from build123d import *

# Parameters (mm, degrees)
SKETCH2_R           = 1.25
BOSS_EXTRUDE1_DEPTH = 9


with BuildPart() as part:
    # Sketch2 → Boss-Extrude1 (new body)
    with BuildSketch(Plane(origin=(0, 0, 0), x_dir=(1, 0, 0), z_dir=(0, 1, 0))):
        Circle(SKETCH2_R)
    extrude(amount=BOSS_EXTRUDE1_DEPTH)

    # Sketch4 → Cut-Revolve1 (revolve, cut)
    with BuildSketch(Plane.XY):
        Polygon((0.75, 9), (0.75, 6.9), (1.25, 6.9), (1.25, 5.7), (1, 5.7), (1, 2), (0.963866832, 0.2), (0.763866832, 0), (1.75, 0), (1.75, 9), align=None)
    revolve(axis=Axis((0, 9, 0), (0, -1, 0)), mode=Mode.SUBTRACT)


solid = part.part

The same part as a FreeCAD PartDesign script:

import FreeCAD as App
import Part
import Sketcher
from FreeCAD import Vector
Q = App.Units.Quantity


def add_polygon(sketch, points):
    """Adds a closed chain of lines whose ends are joined by coincident constraints."""
    first, n = sketch.GeometryCount, len(points)
    for a, b in zip(points, points[1:] + points[:1]):
        sketch.addGeometry(Part.LineSegment(App.Vector(*a, 0), App.Vector(*b, 0)), False)
    for i in range(n):
        sketch.addConstraint(Sketcher.Constraint("Coincident", first + i, 2, first + (i + 1) % n, 1))

doc = App.newDocument("Part")
body = doc.addObject("PartDesign::Body", "Body")

sketch1 = doc.addObject("Sketcher::SketchObject", "Sketch")
body.addObject(sketch1)
sketch1.AttachmentSupport = (doc.XZ_Plane, [""])
sketch1.MapMode = "FlatFace"
sketch1.addGeometry(Part.Circle(Vector(0, 0, 0), Vector(0, 0, 1), 1.25), False)
sketch1.addConstraint(Sketcher.Constraint("Coincident", 0, 3, -1, 1))
sketch1.addConstraint(Sketcher.Constraint("Diameter", 0, 2.5))
pad1 = doc.addObject("PartDesign::Pad", "Pad")
body.addObject(pad1)
pad1.Profile = sketch1
pad1.Length = 9
pad1.Reversed = True

sketch2 = doc.addObject("Sketcher::SketchObject", "Sketch001")
body.addObject(sketch2)
sketch2.AttachmentSupport = (doc.XY_Plane, [""])
sketch2.MapMode = "FlatFace"
add_polygon(sketch2, [(0.75, 9), (0.75, 6.9), (1.25, 6.9), (1.25, 5.7), (1, 5.7), (1, 2), (0.963867, 0.2), (0.763867, 0), (1.75, 0), (1.75, 9)])
sketch2.addConstraint(Sketcher.Constraint("Vertical", 0))
sketch2.addConstraint(Sketcher.Constraint("Horizontal", 1))
sketch2.addConstraint(Sketcher.Constraint("Vertical", 2))
sketch2.addConstraint(Sketcher.Constraint("Horizontal", 3))
sketch2.addConstraint(Sketcher.Constraint("Vertical", 4))
sketch2.addConstraint(Sketcher.Constraint("Horizontal", 7))
sketch2.addConstraint(Sketcher.Constraint("Vertical", 8))
sketch2.addConstraint(Sketcher.Constraint("Horizontal", 9))
sketch2.addConstraint(Sketcher.Constraint("PointOnObject", 6, 2, -1))
sketch2.addConstraint(Sketcher.Constraint("DistanceX", 9, 2, 9, 1, 1.0))
sketch2.addConstraint(Sketcher.Constraint("DistanceY", 8, 1, 8, 2, 9.0))
sketch2.addConstraint(Sketcher.Constraint("Angle", 6, Q("-135 deg")))
sketch2.addConstraint(Sketcher.Constraint("DistanceX", 1, 1, 1, 2, 0.5))
sketch2.addConstraint(Sketcher.Constraint("DistanceY", 0, 2, 0, 1, 2.1))
sketch2.addConstraint(Sketcher.Constraint("DistanceY", 2, 2, 2, 1, 1.2))
sketch2.addConstraint(Sketcher.Constraint("DistanceY", 4, 2, 4, 1, 3.7))
sketch2.addConstraint(Sketcher.Constraint("DistanceX", -1, 1, 3, 2, 1.0))
sketch2.addConstraint(Sketcher.Constraint("DistanceX", 3, 2, 3, 1, 0.25))
sketch2.addConstraint(Sketcher.Constraint("DistanceY", -1, 1, 5, 2, 0.2))
sketch2.addConstraint(Sketcher.Constraint("Angle", 5, Q("-91.15 deg")))
groove = doc.addObject("PartDesign::Groove", "Groove")
body.addObject(groove)
groove.Profile = sketch2
groove.ReferenceAxis = (sketch2, ["V_Axis"])
groove.Angle = 360

doc.recompute()
